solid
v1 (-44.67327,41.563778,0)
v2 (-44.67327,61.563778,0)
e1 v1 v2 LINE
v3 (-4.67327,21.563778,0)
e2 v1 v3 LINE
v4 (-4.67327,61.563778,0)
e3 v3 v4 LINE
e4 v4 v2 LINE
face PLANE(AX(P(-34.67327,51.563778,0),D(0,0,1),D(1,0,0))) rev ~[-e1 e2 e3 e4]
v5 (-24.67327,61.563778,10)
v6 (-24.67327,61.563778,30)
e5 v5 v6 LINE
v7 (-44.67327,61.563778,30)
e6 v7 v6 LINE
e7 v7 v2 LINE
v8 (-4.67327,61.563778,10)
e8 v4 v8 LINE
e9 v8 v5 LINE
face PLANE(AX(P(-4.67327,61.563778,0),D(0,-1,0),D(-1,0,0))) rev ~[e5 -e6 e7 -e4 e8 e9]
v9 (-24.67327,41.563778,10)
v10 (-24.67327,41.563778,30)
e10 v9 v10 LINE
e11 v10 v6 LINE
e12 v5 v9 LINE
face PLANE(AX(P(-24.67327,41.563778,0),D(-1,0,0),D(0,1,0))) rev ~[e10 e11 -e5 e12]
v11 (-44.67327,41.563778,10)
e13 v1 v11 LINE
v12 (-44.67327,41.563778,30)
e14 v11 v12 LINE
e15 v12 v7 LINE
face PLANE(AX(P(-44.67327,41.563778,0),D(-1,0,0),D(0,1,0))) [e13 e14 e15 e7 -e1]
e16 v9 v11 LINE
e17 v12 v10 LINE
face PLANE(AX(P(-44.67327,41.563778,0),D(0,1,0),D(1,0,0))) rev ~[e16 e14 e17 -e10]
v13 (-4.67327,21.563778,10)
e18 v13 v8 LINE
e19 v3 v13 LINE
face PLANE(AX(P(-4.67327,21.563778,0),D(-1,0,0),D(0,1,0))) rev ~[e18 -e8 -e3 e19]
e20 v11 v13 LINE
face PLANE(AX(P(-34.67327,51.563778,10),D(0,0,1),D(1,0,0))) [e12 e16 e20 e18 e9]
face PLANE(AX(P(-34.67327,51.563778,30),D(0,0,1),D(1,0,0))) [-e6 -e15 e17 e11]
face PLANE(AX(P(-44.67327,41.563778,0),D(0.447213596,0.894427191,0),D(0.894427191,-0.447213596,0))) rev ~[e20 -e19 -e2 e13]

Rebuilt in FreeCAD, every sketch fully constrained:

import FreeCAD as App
import Part
import Sketcher
from FreeCAD import Vector


def add_polygon(sketch, points):
    """Adds a closed chain of lines whose ends are joined by coincident constraints."""
    first, n = sketch.GeometryCount, len(points)
    for a, b in zip(points, points[1:] + points[:1]):
        sketch.addGeometry(Part.LineSegment(App.Vector(*a, 0), App.Vector(*b, 0)), False)
    for i in range(n):
        sketch.addConstraint(Sketcher.Constraint("Coincident", first + i, 2, first + (i + 1) % n, 1))

doc = App.newDocument("Part")
body = doc.addObject("PartDesign::Body", "Body")

# Sketch on XY plane
sketch1 = body.newObject("Sketcher::SketchObject", "Sketch")
sketch1.AttachmentSupport = (doc.getObject("XY_Plane"), [""])
sketch1.MapMode = "FlatFace"
add_polygon(sketch1, [(-45, 62), (-45, 42), (-5, 22), (-5, 62)])  # lines 0-3
sketch1.addConstraint(Sketcher.Constraint("Vertical", 0))
sketch1.addConstraint(Sketcher.Constraint("Vertical", 2))
sketch1.addConstraint(Sketcher.Constraint("Horizontal", 3))
sketch1.addConstraint(Sketcher.Constraint("Equal", 3, 2))
sketch1.addConstraint(Sketcher.Constraint("DistanceX", 3, 2, 3, 1, 40.0))
sketch1.addConstraint(Sketcher.Constraint("DistanceY", 0, 2, 0, 1, 20.0))
sketch1.addConstraint(Sketcher.Constraint("DistanceX", 0, 2, -1, 1, 44.67327))
sketch1.addConstraint(Sketcher.Constraint("DistanceY", -1, 1, 0, 2, 41.563778))
pad1 = body.newObject("PartDesign::Pad", "Pad")
pad1.Profile = sketch1
pad1.Length = 10

# Sketch on XY plane
sketch2 = body.newObject("Sketcher::SketchObject", "Sketch001")
sketch2.AttachmentSupport = (doc.getObject("XY_Plane"), [""])
sketch2.MapMode = "FlatFace"
add_polygon(sketch2, [(-45, 62), (-45, 42), (-25, 42), (-25, 62)])  # lines 0-3
sketch2.addConstraint(Sketcher.Constraint("Vertical", 0))
sketch2.addConstraint(Sketcher.Constraint("Horizontal", 1))
sketch2.addConstraint(Sketcher.Constraint("Vertical", 2))
sketch2.addConstraint(Sketcher.Constraint("Horizontal", 3))
sketch2.addConstraint(Sketcher.Constraint("Equal", 3, 0))
sketch2.addConstraint(Sketcher.Constraint("DistanceX", 1, 1, 1, 2, 20.0))
sketch2.addConstraint(Sketcher.Constraint("DistanceX", 0, 2, -1, 1, 44.67327))
sketch2.addConstraint(Sketcher.Constraint("DistanceY", -1, 1, 0, 2, 41.563778))
pad2 = body.newObject("PartDesign::Pad", "Pad001")
pad2.Profile = sketch2
pad2.Length = 30

doc.recompute()
